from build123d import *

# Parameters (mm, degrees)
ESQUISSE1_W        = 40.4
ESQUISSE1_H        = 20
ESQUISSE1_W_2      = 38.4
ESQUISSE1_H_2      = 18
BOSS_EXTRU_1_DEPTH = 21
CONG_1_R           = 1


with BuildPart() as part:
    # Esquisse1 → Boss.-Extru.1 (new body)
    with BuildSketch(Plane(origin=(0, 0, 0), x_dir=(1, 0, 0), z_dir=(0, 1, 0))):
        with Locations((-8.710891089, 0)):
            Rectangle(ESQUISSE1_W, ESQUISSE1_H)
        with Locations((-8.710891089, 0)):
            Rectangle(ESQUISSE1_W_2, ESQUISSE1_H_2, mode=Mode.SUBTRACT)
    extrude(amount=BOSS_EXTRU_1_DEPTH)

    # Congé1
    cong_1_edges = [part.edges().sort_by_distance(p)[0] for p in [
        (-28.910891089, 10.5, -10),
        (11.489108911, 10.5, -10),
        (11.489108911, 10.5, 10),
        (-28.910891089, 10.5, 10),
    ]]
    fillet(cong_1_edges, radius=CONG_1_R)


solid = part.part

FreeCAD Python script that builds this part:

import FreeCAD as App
import Part
import Sketcher
Q = App.Units.Quantity


def edges_at(feature, points):
    """Names of the edges that pass closest to the given points."""
    edges = feature.Shape.Edges
    near = lambda p: min(range(len(edges)), key=lambda i: edges[i].distToShape(Part.Vertex(*p))[0])
    return sorted({f"Edge{near(p) + 1}" for p in points})

doc = App.newDocument("Part")
body = doc.addObject("PartDesign::Body", "Body")

sketch1 = body.newObject("Sketcher::SketchObject", "Sketch")
sketch1.AttachmentSupport = (doc.getObject("XZ_Plane"), [""])
sketch1.MapMode = "FlatFace"
sketch1.addGeometry([
    Part.LineSegment(App.Vector(-28.910891, -10, 0), App.Vector(-28.910891, 10, 0)),
    Part.LineSegment(App.Vector(-28.910891, 10, 0), App.Vector(11.489109, 10, 0)),
    Part.LineSegment(App.Vector(11.489109, 10, 0), App.Vector(11.489109, -10, 0)),
    Part.LineSegment(App.Vector(11.489109, -10, 0), App.Vector(-28.910891, -10, 0)),
    Part.LineSegment(App.Vector(10.489109, 9, 0), App.Vector(-27.910891, 9, 0)),
    Part.LineSegment(App.Vector(-27.910891, 9, 0), App.Vector(-27.910891, -9, 0)),
    Part.LineSegment(App.Vector(-27.910891, -9, 0), App.Vector(10.489109, -9, 0)),
    Part.LineSegment(App.Vector(10.489109, -9, 0), App.Vector(10.489109, 9, 0)),
], False)
sketch1.addConstraint([
    Sketcher.Constraint("Coincident", 0, 2, 1, 1),
    Sketcher.Constraint("Coincident", 1, 2, 2, 1),
    Sketcher.Constraint("Coincident", 2, 2, 3, 1),
    Sketcher.Constraint("Coincident", 3, 2, 0, 1),
    Sketcher.Constraint("Coincident", 4, 2, 5, 1),
    Sketcher.Constraint("Coincident", 5, 2, 6, 1),
    Sketcher.Constraint("Coincident", 6, 2, 7, 1),
    Sketcher.Constraint("Coincident", 7, 2, 4, 1),
    Sketcher.Constraint("Vertical", 0),
    Sketcher.Constraint("Horizontal", 1),
    Sketcher.Constraint("Vertical", 2),
    Sketcher.Constraint("Horizontal", 3),
    Sketcher.Constraint("Horizontal", 4),
    Sketcher.Constraint("Vertical", 5),
    Sketcher.Constraint("Horizontal", 6),
    Sketcher.Constraint("Vertical", 7),
    Sketcher.Constraint("DistanceY", 0, 1, 0, 2, Q("20 mm")),
    Sketcher.Constraint("DistanceY", 5, 2, 5, 1, Q("18 mm")),
    Sketcher.Constraint("DistanceX", 1, 1, 1, 2, Q("40.4 mm")),
    Sketcher.Constraint("DistanceX", 4, 2, 4, 1, Q("38.4 mm")),
    Sketcher.Constraint("DistanceY", -1, 1, 0, 2, Q("10 mm")),
    Sketcher.Constraint("DistanceY", -1, 1, 4, 2, Q("9 mm")),
    Sketcher.Constraint("DistanceX", 0, 2, 4, 2, Q("1 mm")),
    Sketcher.Constraint("DistanceX", 0, 2, -1, 1, Q("28.910891 mm")),
])
pad1 = body.newObject("PartDesign::Pad", "Pad")
pad1.Profile = sketch1
pad1.Length = 21
pad1.Reversed = True
doc.recompute()

fillet = body.newObject("PartDesign::Fillet", "Fillet")
fillet.Base = (pad1, edges_at(pad1, [
    (-28.911, 10.5, -10),
    (11.489, 10.5, -10),
    (11.489, 10.5, 10),
    (-28.911, 10.5, 10),
]))
fillet.Radius = 1

doc.recompute()
